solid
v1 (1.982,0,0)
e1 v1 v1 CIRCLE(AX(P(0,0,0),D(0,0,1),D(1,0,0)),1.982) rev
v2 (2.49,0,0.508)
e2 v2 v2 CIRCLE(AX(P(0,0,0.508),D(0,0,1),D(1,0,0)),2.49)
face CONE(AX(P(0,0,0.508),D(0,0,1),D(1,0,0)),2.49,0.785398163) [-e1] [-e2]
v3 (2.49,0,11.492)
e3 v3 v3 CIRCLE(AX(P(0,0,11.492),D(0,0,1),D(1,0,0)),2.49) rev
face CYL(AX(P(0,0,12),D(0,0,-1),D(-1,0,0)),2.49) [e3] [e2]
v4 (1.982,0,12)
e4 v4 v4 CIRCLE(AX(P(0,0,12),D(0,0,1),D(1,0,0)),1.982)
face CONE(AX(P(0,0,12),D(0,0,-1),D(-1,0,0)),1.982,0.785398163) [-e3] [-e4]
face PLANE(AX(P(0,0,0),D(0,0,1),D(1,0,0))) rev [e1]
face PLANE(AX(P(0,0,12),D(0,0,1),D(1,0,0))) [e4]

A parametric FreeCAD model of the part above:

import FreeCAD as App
import Part
import Sketcher

V = App.Vector


def edges_at(feature, points):
    """Names of the edges that pass closest to the given points."""
    edges = feature.Shape.Edges
    near = lambda p: min(range(len(edges)), key=lambda i: edges[i].distToShape(Part.Vertex(*p))[0])
    return sorted({f"Edge{near(p) + 1}" for p in points})

doc = App.newDocument("Part")
params = doc.addObject("Spreadsheet::Sheet", "Params")
for row, (alias, value) in enumerate([
    ("sketch1_diameter", "4.98 mm"),
    ("pad1_length", "12 mm"),
    ("chamfer_size", "0.508 mm"),
], start=1):
    params.set(f"A{row}", alias)
    params.set(f"B{row}", "=" + value)
    params.setAlias(f"B{row}", alias)

body = doc.addObject("PartDesign::Body", "Body")

# Sketch on XY plane
sketch1 = doc.addObject("Sketcher::SketchObject", "Sketch")
body.addObject(sketch1)
sketch1.AttachmentSupport = (doc.XY_Plane, [""])
sketch1.MapMode = "FlatFace"
sketch1.addGeometry(Part.Circle(V(0, 0, 0), V(0, 0, 1), 2.5), False)
sketch1.addConstraint(Sketcher.Constraint("Coincident", 0, 3, -1, 1))
sketch1.addConstraint(Sketcher.Constraint("Diameter", 0, 4.98))
sketch1.setExpression("Constraints[1]", "Params.sketch1_diameter")
pad1 = doc.addObject("PartDesign::Pad", "Pad")
body.addObject(pad1)
pad1.Profile = sketch1
pad1.setExpression("Length", "Params.pad1_length")
doc.recompute()

chamfer = doc.addObject("PartDesign::Chamfer", "Chamfer")
body.addObject(chamfer)
chamfer.Base = (pad1, edges_at(pad1, [(-2.49, 0, 0), (-2.49, 0, 12)]))
chamfer.setExpression("Size", "Params.chamfer_size")

doc.recompute()
